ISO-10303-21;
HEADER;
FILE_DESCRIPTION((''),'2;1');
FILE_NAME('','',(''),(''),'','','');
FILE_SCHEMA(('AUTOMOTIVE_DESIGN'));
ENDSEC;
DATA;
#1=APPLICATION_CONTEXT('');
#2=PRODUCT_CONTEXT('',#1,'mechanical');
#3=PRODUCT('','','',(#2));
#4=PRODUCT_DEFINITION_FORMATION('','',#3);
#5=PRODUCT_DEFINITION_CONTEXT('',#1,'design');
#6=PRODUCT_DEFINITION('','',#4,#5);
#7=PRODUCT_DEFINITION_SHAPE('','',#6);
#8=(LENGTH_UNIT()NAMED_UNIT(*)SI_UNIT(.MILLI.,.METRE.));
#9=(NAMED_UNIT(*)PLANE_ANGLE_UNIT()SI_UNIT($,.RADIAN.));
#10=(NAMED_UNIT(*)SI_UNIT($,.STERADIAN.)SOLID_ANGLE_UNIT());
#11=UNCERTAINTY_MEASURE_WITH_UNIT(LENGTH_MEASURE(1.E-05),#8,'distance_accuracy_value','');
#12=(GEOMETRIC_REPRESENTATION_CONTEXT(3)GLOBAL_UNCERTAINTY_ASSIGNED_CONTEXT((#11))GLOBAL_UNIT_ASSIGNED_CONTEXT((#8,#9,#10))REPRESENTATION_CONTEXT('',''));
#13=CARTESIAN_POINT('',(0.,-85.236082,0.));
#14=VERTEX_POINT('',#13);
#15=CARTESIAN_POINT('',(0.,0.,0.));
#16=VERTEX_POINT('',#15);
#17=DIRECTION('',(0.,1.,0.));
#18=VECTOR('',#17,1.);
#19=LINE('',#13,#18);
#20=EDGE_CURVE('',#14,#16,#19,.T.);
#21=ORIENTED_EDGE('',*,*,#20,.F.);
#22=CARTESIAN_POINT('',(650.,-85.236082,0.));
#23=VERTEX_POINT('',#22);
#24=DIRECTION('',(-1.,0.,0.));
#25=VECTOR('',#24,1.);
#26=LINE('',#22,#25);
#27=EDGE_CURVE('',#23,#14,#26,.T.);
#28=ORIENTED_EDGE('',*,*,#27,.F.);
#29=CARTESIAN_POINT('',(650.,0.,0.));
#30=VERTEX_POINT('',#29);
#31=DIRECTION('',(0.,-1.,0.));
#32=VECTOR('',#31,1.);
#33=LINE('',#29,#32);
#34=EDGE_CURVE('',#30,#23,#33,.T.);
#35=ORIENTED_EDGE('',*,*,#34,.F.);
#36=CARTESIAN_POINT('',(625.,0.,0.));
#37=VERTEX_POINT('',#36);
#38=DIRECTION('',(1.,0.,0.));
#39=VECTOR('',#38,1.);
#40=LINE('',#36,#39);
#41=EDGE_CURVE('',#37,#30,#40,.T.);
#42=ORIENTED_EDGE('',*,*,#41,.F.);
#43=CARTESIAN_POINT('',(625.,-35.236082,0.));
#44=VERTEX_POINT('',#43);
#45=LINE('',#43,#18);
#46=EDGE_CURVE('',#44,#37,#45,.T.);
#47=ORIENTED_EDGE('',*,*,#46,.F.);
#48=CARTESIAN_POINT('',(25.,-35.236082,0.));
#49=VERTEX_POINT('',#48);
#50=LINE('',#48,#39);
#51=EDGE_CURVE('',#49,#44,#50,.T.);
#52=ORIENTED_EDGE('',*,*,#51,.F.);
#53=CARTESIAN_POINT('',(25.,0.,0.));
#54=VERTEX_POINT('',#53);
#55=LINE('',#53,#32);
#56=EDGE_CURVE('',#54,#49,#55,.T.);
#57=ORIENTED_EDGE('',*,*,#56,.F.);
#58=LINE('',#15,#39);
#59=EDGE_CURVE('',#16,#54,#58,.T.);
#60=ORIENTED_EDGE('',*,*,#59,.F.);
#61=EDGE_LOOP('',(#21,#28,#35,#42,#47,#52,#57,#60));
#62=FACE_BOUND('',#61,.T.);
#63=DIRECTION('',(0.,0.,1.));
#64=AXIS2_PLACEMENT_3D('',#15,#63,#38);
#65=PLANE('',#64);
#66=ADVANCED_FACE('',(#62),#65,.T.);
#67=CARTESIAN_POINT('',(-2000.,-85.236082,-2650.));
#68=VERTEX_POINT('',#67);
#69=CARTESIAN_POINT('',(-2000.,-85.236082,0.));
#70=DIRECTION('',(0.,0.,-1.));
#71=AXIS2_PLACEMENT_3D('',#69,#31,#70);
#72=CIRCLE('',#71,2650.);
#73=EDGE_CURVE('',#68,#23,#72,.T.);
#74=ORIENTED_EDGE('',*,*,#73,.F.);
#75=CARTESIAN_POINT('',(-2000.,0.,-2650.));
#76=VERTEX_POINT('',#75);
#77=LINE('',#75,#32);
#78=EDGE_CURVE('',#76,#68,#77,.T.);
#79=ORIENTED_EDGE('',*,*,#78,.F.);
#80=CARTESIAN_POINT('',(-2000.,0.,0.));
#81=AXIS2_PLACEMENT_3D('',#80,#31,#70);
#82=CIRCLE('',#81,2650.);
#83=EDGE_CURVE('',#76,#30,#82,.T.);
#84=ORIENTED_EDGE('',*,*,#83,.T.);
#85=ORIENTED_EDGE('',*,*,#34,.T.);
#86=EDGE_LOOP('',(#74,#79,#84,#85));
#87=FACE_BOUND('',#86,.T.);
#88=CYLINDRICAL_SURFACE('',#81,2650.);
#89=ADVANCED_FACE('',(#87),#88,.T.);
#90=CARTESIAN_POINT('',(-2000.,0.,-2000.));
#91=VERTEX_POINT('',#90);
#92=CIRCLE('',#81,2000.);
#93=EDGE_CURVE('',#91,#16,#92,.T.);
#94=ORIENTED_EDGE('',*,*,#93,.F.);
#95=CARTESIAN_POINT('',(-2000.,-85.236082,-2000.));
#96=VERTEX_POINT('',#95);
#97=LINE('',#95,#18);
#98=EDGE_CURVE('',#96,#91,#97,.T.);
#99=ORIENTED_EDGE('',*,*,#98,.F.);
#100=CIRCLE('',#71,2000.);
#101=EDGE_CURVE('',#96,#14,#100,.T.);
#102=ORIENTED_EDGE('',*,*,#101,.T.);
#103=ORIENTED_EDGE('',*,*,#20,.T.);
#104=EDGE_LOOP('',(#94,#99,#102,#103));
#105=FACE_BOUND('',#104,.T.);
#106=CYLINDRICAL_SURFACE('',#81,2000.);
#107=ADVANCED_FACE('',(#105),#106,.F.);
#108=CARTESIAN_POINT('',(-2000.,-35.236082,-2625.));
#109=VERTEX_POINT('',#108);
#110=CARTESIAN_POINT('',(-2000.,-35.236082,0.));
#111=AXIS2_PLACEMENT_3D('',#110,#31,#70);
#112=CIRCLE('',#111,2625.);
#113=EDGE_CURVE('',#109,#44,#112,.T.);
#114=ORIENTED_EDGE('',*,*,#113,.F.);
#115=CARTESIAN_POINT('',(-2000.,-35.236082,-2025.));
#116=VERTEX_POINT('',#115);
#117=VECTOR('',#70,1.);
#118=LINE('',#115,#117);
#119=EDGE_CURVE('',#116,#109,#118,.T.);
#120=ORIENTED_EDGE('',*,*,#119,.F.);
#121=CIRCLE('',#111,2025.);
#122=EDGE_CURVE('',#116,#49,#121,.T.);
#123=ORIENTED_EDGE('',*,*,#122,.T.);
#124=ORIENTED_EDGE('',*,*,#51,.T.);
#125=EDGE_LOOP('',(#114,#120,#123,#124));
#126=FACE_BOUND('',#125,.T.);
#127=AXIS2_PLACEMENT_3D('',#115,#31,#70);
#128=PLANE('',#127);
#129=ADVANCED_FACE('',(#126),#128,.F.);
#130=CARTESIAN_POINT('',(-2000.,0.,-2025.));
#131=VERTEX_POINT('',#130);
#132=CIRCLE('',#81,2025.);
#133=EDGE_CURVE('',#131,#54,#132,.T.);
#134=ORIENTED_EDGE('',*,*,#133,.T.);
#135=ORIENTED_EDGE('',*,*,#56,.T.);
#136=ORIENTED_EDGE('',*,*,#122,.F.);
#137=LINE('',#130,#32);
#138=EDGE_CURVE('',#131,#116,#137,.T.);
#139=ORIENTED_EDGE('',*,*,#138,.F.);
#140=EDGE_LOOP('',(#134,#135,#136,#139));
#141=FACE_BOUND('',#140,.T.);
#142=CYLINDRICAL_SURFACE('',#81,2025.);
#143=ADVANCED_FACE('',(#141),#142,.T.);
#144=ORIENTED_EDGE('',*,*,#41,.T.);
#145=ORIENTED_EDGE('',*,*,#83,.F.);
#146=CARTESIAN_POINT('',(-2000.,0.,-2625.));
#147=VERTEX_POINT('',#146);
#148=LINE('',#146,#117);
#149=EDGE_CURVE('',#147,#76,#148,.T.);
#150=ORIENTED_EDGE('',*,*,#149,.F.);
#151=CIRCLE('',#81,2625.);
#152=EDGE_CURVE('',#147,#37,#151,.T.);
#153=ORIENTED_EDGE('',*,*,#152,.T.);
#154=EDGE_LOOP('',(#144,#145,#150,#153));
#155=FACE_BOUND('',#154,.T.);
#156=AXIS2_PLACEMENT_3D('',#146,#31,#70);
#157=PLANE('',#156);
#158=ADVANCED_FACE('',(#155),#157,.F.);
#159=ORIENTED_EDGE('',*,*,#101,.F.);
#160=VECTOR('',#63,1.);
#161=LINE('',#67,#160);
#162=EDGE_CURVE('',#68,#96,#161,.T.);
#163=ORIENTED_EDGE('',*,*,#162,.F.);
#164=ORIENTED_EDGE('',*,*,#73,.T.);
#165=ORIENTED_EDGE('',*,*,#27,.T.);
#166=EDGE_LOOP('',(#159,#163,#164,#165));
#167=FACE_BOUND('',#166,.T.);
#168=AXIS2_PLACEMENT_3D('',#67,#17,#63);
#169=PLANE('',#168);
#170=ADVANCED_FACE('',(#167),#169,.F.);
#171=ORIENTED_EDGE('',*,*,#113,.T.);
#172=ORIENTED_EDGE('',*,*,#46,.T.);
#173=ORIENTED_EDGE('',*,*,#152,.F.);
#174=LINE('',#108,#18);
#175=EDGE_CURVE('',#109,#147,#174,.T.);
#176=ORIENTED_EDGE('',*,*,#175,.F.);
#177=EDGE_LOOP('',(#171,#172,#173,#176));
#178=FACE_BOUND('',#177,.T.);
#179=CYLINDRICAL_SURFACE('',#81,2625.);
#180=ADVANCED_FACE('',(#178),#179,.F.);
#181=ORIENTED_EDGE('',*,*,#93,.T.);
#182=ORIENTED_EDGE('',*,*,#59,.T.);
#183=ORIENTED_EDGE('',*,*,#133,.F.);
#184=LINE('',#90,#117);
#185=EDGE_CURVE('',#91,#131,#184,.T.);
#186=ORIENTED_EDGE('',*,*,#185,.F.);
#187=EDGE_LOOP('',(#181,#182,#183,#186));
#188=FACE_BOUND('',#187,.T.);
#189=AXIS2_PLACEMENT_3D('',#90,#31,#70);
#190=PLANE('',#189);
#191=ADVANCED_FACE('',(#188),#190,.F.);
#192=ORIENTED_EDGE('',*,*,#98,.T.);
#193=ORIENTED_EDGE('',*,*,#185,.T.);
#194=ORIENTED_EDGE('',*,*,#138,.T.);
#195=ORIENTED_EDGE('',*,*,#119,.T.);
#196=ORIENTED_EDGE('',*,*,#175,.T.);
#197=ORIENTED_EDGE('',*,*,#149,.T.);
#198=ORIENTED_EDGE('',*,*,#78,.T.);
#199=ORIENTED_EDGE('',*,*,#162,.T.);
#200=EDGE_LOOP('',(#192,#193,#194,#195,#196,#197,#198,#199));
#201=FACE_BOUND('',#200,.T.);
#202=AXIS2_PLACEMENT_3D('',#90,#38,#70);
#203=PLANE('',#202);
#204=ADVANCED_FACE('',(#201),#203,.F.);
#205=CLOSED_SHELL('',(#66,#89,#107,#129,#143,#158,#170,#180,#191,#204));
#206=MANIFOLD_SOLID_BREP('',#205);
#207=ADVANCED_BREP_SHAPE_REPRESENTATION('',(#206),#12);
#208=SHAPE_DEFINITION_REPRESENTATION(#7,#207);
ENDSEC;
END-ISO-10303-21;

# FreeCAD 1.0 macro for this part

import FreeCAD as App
import Part
import Sketcher


def add_polygon(sketch, points):
    """Adds a closed chain of lines whose ends are joined by coincident constraints."""
    first, n = sketch.GeometryCount, len(points)
    for a, b in zip(points, points[1:] + points[:1]):
        sketch.addGeometry(Part.LineSegment(App.Vector(*a, 0), App.Vector(*b, 0)), False)
    for i in range(n):
        sketch.addConstraint(Sketcher.Constraint("Coincident", first + i, 2, first + (i + 1) % n, 1))

doc = App.newDocument("Part")
body = doc.addObject("PartDesign::Body", "Body")

# Sketch on XY plane
sketch1 = body.newObject("Sketcher::SketchObject", "Sketch")
sketch1.AttachmentSupport = (doc.getObject("XY_Plane"), [""])
sketch1.MapMode = "FlatFace"
add_polygon(sketch1, [(25, 0), (0, 0), (0, -85), (650, -85), (650, 0), (625, 0), (625, -35), (25, -35)])  # lines 0-7
sketch1.addGeometry(Part.LineSegment(App.Vector(-2000, -85, 0), App.Vector(-2000, 0, 0)), True)  # axis
sketch1.addConstraint(Sketcher.Constraint("Horizontal", 0))
sketch1.addConstraint(Sketcher.Constraint("Vertical", 1))
sketch1.addConstraint(Sketcher.Constraint("Horizontal", 2))
sketch1.addConstraint(Sketcher.Constraint("Vertical", 3))
sketch1.addConstraint(Sketcher.Constraint("Horizontal", 4))
sketch1.addConstraint(Sketcher.Constraint("Vertical", 5))
sketch1.addConstraint(Sketcher.Constraint("Horizontal", 6))
sketch1.addConstraint(Sketcher.Constraint("Vertical", 7))
sketch1.addConstraint(Sketcher.Constraint("Vertical", 8))
sketch1.addConstraint(Sketcher.Constraint("Coincident", 0, 2, -1, 1))
sketch1.addConstraint(Sketcher.Constraint("PointOnObject", 3, 2, -1))
sketch1.addConstraint(Sketcher.Constraint("PointOnObject", 8, 2, -1))
sketch1.addConstraint(Sketcher.Constraint("Horizontal", 2, 2, 8, 1))
sketch1.addConstraint(Sketcher.Constraint("Equal", 0, 4))
sketch1.addConstraint(Sketcher.Constraint("DistanceX", 0, 2, 0, 1, 25.0))
sketch1.addConstraint(Sketcher.Constraint("DistanceX", 2, 1, 2, 2, 650.0))
sketch1.addConstraint(Sketcher.Constraint("DistanceX", 8, 1, -1, 1, 2000.0))
sketch1.addConstraint(Sketcher.Constraint("DistanceY", 2, 2, 5, 2, 50.0))
sketch1.addConstraint(Sketcher.Constraint("DistanceY", 1, 2, 1, 1, 85.236082))
revolution = body.newObject("PartDesign::Revolution", "Revolution")
revolution.Profile = sketch1
revolution.ReferenceAxis = (sketch1, ["Axis0"])
revolution.Angle = 90

doc.recompute()
